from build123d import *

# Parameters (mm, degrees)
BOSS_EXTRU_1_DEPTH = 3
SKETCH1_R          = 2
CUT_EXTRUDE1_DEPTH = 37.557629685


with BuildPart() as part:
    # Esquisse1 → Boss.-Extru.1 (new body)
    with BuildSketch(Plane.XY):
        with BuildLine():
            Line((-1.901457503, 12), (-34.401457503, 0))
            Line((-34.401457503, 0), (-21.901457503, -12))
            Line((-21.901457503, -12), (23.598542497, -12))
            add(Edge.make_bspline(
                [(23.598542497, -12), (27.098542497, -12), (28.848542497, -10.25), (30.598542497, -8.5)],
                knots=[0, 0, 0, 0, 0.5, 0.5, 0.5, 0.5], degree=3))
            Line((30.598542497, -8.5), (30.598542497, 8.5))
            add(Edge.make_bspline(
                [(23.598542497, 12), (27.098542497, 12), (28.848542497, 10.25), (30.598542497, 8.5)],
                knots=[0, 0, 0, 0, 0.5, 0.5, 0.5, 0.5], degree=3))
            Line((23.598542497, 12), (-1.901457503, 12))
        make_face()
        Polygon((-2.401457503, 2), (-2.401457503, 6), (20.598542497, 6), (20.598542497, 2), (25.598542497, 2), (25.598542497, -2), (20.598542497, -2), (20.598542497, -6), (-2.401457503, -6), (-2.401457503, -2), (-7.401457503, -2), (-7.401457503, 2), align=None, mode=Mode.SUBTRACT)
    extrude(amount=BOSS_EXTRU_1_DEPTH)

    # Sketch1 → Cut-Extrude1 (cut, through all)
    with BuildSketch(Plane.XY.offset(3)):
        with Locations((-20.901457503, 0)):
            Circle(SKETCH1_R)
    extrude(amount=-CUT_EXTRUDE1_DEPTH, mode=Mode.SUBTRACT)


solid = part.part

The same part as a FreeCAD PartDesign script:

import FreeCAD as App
import Part
import Sketcher

V = App.Vector
Q = App.Units.Quantity

doc = App.newDocument("Part")
body = doc.addObject("PartDesign::Body", "Body")

# Sketch on XY plane
sketch1 = doc.addObject("Sketcher::SketchObject", "Sketch")
body.addObject(sketch1)
sketch1.AttachmentSupport = (doc.XY_Plane, [""])
sketch1.MapMode = "FlatFace"
sketch1.addGeometry([
    Part.LineSegment(V(-1.901458, 12, 0), V(-34.401458, 0, 0)),  # 0
    Part.LineSegment(V(-34.401458, 0, 0), V(-21.901458, -12, 0)),  # 1
    Part.LineSegment(V(-21.901458, -12, 0), V(23.598542, -12, 0)),  # 2
    Part.BSplineCurve([V(23.598542, -12, 0), V(27.098542, -12, 0), V(28.848542, -10.25, 0), V(30.598542, -8.5, 0)], [4, 4], [0, 0.5], False, 3, [1, 1, 1, 1], False),  # 3
    Part.LineSegment(V(30.598542, -8.5, 0), V(30.598542, 8.5, 0)),  # 4
    Part.BSplineCurve([V(23.598542, 12, 0), V(27.098542, 12, 0), V(28.848542, 10.25, 0), V(30.598542, 8.5, 0)], [4, 4], [0, 0.5], False, 3, [1, 1, 1, 1], False),  # 5
    Part.LineSegment(V(23.598542, 12, 0), V(-1.901458, 12, 0)),  # 6
    Part.LineSegment(V(-7.401458, 2, 0), V(-2.401458, 2, 0)),  # 7
    Part.LineSegment(V(-2.401458, 2, 0), V(-2.401458, 6, 0)),  # 8
    Part.LineSegment(V(-2.401458, 6, 0), V(20.598542, 6, 0)),  # 9
    Part.LineSegment(V(20.598542, 6, 0), V(20.598542, 2, 0)),  # 10
    Part.LineSegment(V(20.598542, 2, 0), V(25.598542, 2, 0)),  # 11
    Part.LineSegment(V(25.598542, 2, 0), V(25.598542, -2, 0)),  # 12
    Part.LineSegment(V(25.598542, -2, 0), V(20.598542, -2, 0)),  # 13
    Part.LineSegment(V(20.598542, -2, 0), V(20.598542, -6, 0)),  # 14
    Part.LineSegment(V(20.598542, -6, 0), V(-2.401458, -6, 0)),  # 15
    Part.LineSegment(V(-2.401458, -6, 0), V(-2.401458, -2, 0)),  # 16
    Part.LineSegment(V(-2.401458, -2, 0), V(-7.401458, -2, 0)),  # 17
    Part.LineSegment(V(-7.401458, -2, 0), V(-7.401458, 2, 0)),  # 18
], False)
sketch1.addConstraint([
    Sketcher.Constraint("Block", 3),
    Sketcher.Constraint("Block", 5),
    Sketcher.Constraint("Coincident", 0, 2, 1, 1),
    Sketcher.Constraint("Coincident", 1, 2, 2, 1),
    Sketcher.Constraint("Coincident", 2, 2, 3, 1),
    Sketcher.Constraint("Coincident", 3, 2, 4, 1),
    Sketcher.Constraint("Coincident", 4, 2, 5, 2),
    Sketcher.Constraint("Coincident", 5, 1, 6, 1),
    Sketcher.Constraint("Coincident", 6, 2, 0, 1),
    Sketcher.Constraint("Coincident", 7, 2, 8, 1),
    Sketcher.Constraint("Coincident", 8, 2, 9, 1),
    Sketcher.Constraint("Coincident", 9, 2, 10, 1),
    Sketcher.Constraint("Coincident", 10, 2, 11, 1),
    Sketcher.Constraint("Coincident", 11, 2, 12, 1),
    Sketcher.Constraint("Coincident", 12, 2, 13, 1),
    Sketcher.Constraint("Coincident", 13, 2, 14, 1),
    Sketcher.Constraint("Coincident", 14, 2, 15, 1),
    Sketcher.Constraint("Coincident", 15, 2, 16, 1),
    Sketcher.Constraint("Coincident", 16, 2, 17, 1),
    Sketcher.Constraint("Coincident", 17, 2, 18, 1),
    Sketcher.Constraint("Coincident", 18, 2, 7, 1),
    Sketcher.Constraint("Horizontal", 2),
    Sketcher.Constraint("Horizontal", 6),
    Sketcher.Constraint("Horizontal", 7),
    Sketcher.Constraint("Vertical", 8),
    Sketcher.Constraint("Horizontal", 9),
    Sketcher.Constraint("Vertical", 10),
    Sketcher.Constraint("Horizontal", 11),
    Sketcher.Constraint("Vertical", 12),
    Sketcher.Constraint("Horizontal", 13),
    Sketcher.Constraint("Vertical", 14),
    Sketcher.Constraint("Horizontal", 15),
    Sketcher.Constraint("Vertical", 16),
    Sketcher.Constraint("Horizontal", 17),
    Sketcher.Constraint("Vertical", 18),
    Sketcher.Constraint("Symmetric", 10, 2, 13, 2, -1),
    Sketcher.Constraint("Symmetric", 8, 2, 15, 2, -1),
    Sketcher.Constraint("PointOnObject", 0, 2, -1),
    Sketcher.Constraint("Horizontal", 7, 2, 10, 2),
    Sketcher.Constraint("Horizontal", 13, 2, 16, 2),
    Sketcher.Constraint("Equal", 7, 11),
    Sketcher.Constraint("Equal", 10, 12),
    Sketcher.Constraint("DistanceX", 7, 1, 7, 2, Q("5 mm")),
    Sketcher.Constraint("DistanceX", 9, 1, 9, 2, Q("23 mm")),
    Sketcher.Constraint("DistanceY", 8, 1, 8, 2, Q("4 mm")),
    Sketcher.Constraint("DistanceX", 2, 1, 2, 2, Q("45.5 mm")),
    Sketcher.Constraint("DistanceX", 6, 2, 6, 1, Q("25.5 mm")),
    Sketcher.Constraint("DistanceX", 0, 2, 2, 2, Q("58 mm")),
    Sketcher.Constraint("DistanceX", 7, 2, 2, 2, Q("26 mm")),
])
pad1 = doc.addObject("PartDesign::Pad", "Pad")
body.addObject(pad1)
pad1.Profile = sketch1
pad1.Length = 3

# Sketch on XY plane
sketch2 = doc.addObject("Sketcher::SketchObject", "Sketch001")
body.addObject(sketch2)
sketch2.AttachmentSupport = (doc.XY_Plane, [""])
sketch2.MapMode = "FlatFace"
sketch2.AttachmentOffset = App.Placement(V(0, 0, 3), App.Rotation())
sketch2.addGeometry(Part.Circle(V(-20.9, 0, 0), V(0, 0, 1), 2), False)
sketch2.addConstraint([
    Sketcher.Constraint("PointOnObject", 0, 3, -1),
    Sketcher.Constraint("Diameter", 0, Q("4 mm")),
    Sketcher.Constraint("DistanceX", 0, 3, -1, 1, Q("20.901458 mm")),
])
pocket1 = doc.addObject("PartDesign::Pocket", "Pocket")
body.addObject(pocket1)
pocket1.Profile = sketch2
pocket1.Type = "ThroughAll"

doc.recompute()
